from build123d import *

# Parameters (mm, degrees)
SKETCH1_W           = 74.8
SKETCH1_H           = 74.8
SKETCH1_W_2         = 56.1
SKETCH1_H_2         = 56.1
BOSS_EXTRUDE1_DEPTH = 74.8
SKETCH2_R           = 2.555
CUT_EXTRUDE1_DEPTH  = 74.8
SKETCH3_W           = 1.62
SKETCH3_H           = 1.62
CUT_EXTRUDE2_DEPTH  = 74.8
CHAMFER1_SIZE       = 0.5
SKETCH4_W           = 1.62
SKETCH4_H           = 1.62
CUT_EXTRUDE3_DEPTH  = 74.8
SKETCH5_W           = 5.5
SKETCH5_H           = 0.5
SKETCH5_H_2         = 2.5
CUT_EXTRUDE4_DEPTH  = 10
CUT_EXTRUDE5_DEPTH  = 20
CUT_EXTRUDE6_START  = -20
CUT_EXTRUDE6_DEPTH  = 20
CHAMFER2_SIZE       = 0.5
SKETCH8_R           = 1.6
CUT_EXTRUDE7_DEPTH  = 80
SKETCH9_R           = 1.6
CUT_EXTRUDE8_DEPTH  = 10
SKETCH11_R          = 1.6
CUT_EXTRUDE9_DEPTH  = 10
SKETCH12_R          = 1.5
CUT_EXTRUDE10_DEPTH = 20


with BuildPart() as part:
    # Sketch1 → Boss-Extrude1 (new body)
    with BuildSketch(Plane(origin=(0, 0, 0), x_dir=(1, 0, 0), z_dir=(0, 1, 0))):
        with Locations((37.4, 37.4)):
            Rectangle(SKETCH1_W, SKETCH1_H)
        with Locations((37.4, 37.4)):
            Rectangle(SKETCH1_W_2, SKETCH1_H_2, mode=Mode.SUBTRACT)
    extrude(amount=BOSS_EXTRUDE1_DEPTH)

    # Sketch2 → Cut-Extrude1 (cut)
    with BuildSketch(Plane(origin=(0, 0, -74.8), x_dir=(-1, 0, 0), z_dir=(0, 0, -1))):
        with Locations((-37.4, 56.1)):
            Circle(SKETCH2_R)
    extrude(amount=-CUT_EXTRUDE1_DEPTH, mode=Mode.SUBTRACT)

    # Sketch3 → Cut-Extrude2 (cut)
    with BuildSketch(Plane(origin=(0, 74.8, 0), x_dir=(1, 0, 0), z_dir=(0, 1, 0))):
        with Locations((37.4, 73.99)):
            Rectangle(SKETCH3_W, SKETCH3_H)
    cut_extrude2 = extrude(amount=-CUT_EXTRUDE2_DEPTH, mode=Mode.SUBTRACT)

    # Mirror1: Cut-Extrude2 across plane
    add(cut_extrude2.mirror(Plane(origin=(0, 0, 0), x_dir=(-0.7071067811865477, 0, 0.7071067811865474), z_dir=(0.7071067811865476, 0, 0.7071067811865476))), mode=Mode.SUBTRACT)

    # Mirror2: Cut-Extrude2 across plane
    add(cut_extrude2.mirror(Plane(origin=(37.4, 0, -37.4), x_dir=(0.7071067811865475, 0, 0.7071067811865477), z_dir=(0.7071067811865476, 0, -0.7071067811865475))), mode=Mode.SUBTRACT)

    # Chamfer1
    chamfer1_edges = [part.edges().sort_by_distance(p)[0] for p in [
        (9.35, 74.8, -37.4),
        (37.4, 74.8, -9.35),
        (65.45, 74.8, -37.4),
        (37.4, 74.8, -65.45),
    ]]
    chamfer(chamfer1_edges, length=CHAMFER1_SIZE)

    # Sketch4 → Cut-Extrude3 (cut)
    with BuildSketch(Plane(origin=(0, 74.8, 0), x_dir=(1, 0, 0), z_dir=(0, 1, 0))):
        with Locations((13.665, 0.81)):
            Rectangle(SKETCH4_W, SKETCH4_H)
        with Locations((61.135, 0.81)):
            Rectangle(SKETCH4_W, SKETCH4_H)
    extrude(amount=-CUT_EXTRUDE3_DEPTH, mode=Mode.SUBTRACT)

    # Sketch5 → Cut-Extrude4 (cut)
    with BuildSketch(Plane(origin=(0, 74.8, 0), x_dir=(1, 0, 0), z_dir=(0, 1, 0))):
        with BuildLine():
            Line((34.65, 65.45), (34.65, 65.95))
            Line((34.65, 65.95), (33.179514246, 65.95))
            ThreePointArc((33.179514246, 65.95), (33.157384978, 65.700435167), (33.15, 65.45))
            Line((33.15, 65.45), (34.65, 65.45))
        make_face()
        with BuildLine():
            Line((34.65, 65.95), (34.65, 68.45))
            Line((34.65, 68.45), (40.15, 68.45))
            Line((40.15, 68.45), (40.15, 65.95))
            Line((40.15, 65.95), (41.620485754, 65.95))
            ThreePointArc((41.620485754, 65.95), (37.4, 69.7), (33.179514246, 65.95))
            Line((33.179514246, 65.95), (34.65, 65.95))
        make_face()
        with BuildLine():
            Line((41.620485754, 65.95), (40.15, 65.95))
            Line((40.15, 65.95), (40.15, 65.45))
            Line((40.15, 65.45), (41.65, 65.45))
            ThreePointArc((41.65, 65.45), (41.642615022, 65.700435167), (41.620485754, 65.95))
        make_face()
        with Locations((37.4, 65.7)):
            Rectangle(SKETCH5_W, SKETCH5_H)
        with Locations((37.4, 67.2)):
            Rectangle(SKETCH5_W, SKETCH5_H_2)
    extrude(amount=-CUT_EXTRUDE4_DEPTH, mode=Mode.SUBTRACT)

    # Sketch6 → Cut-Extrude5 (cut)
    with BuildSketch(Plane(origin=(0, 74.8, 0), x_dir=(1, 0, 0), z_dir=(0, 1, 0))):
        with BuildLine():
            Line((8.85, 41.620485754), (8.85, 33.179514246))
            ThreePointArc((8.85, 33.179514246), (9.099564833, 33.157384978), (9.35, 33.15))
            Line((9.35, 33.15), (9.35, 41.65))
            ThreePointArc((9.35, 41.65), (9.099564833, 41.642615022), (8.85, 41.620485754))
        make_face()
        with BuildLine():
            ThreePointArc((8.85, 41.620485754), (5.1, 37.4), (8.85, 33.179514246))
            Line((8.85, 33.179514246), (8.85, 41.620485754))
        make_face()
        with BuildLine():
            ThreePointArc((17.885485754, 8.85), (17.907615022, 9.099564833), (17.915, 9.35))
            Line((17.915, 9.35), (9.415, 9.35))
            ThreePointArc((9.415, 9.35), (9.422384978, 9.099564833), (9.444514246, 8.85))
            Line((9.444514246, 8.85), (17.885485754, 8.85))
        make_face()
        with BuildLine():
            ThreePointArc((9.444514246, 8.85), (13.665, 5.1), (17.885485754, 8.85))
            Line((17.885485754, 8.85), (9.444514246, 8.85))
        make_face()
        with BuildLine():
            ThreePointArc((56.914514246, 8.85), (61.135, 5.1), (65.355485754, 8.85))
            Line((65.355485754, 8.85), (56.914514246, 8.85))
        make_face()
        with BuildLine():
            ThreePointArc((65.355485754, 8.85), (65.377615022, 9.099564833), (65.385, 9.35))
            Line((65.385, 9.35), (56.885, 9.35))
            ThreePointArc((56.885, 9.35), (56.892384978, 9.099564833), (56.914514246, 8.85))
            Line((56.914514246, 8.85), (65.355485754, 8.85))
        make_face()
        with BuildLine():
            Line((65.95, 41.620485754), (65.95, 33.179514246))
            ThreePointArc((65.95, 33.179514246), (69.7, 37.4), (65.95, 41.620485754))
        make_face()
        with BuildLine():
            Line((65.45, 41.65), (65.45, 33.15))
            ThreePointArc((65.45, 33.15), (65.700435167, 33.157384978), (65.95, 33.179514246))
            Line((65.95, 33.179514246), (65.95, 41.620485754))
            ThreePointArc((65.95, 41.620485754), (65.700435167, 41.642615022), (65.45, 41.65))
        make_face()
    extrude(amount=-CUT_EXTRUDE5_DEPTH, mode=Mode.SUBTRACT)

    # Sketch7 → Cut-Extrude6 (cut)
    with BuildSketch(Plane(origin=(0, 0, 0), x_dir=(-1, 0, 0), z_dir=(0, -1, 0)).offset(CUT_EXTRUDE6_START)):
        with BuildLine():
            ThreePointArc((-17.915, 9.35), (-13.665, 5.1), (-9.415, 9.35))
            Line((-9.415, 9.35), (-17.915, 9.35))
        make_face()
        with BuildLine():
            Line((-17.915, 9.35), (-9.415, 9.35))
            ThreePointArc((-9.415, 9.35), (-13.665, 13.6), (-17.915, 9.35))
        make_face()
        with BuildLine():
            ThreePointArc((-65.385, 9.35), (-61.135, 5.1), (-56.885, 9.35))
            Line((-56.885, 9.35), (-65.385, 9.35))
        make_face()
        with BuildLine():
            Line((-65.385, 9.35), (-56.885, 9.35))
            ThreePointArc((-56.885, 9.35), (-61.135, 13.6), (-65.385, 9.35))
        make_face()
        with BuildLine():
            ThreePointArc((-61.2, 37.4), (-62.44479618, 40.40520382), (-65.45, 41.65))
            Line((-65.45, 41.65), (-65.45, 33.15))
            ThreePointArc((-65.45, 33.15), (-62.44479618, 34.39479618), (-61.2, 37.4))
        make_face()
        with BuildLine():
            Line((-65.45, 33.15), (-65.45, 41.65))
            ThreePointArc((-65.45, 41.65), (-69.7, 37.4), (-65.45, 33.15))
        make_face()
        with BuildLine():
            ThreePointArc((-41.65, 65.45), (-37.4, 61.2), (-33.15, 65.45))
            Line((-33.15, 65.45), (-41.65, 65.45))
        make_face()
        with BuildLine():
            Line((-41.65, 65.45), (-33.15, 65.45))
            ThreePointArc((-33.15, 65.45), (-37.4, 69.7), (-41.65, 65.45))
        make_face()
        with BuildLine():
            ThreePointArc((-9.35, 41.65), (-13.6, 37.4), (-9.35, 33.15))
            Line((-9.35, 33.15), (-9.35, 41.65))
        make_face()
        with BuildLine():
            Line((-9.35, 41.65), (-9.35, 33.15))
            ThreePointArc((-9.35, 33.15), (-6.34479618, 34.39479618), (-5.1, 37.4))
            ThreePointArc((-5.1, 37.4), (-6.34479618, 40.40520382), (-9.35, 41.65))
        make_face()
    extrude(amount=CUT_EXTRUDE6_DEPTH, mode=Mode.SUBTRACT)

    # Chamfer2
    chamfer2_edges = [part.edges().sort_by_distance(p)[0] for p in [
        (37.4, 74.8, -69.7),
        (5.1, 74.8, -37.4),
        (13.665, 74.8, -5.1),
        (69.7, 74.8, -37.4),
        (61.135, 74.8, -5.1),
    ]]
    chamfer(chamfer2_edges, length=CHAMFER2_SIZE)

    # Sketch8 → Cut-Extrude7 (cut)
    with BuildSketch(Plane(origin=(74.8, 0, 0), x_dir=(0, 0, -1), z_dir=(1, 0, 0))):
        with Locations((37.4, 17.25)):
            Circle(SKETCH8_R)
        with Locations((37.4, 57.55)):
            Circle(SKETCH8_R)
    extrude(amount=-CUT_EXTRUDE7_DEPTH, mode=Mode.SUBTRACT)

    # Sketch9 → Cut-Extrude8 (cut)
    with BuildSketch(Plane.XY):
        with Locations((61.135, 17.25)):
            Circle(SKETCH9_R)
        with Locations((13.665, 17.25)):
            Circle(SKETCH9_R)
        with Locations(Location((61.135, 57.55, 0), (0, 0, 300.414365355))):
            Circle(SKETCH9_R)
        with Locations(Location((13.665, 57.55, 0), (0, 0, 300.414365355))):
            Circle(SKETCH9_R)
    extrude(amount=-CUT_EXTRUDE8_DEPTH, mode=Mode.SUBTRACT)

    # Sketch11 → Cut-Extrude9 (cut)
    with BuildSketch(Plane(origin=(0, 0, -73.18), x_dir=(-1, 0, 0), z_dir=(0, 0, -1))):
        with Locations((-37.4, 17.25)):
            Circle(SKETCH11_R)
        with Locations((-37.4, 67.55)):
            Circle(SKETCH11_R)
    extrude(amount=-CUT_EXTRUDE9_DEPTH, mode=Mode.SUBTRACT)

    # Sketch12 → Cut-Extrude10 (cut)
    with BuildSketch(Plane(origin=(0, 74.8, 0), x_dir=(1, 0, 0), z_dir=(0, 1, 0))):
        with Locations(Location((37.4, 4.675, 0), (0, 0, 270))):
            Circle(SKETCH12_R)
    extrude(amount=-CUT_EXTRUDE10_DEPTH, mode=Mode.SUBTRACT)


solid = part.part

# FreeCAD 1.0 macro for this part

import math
import FreeCAD as App
import Part
import Sketcher
Q = App.Units.Quantity


def edges_at(feature, points):
    """Names of the edges that pass closest to the given points."""
    edges = feature.Shape.Edges
    near = lambda p: min(range(len(edges)), key=lambda i: edges[i].distToShape(Part.Vertex(*p))[0])
    return sorted({f"Edge{near(p) + 1}" for p in points})

doc = App.newDocument("Part")
body = doc.addObject("PartDesign::Body", "Body")

# Sketch on XZ plane
sketch1 = body.newObject("Sketcher::SketchObject", "Sketch")
sketch1.AttachmentSupport = (doc.getObject("XZ_Plane"), [""])
sketch1.MapMode = "FlatFace"
sketch1.addGeometry([
    Part.LineSegment(App.Vector(0, -74.8, 0), App.Vector(0, 0, 0)),  # 0
    Part.LineSegment(App.Vector(0, 0, 0), App.Vector(74.8, 0, 0)),  # 1
    Part.LineSegment(App.Vector(74.8, 0, 0), App.Vector(74.8, -74.8, 0)),  # 2
    Part.LineSegment(App.Vector(74.8, -74.8, 0), App.Vector(0, -74.8, 0)),  # 3
    Part.LineSegment(App.Vector(65.45, -9.35, 0), App.Vector(9.35, -9.35, 0)),  # 4
    Part.LineSegment(App.Vector(9.35, -9.35, 0), App.Vector(9.35, -65.45, 0)),  # 5
    Part.LineSegment(App.Vector(9.35, -65.45, 0), App.Vector(65.45, -65.45, 0)),  # 6
    Part.LineSegment(App.Vector(65.45, -65.45, 0), App.Vector(65.45, -9.35, 0)),  # 7
], False)
sketch1.addConstraint([
    Sketcher.Constraint("Coincident", 0, 2, 1, 1),
    Sketcher.Constraint("Coincident", 1, 2, 2, 1),
    Sketcher.Constraint("Coincident", 2, 2, 3, 1),
    Sketcher.Constraint("Coincident", 3, 2, 0, 1),
    Sketcher.Constraint("Coincident", 4, 2, 5, 1),
    Sketcher.Constraint("Coincident", 5, 2, 6, 1),
    Sketcher.Constraint("Coincident", 6, 2, 7, 1),
    Sketcher.Constraint("Coincident", 7, 2, 4, 1),
    Sketcher.Constraint("Vertical", 0),
    Sketcher.Constraint("Horizontal", 1),
    Sketcher.Constraint("Vertical", 2),
    Sketcher.Constraint("Horizontal", 3),
    Sketcher.Constraint("Horizontal", 4),
    Sketcher.Constraint("Vertical", 5),
    Sketcher.Constraint("Horizontal", 6),
    Sketcher.Constraint("Vertical", 7),
    Sketcher.Constraint("Coincident", 0, 2, -1, 1),
    Sketcher.Constraint("Equal", 3, 0),
    Sketcher.Constraint("Equal", 6, 5),
    Sketcher.Constraint("DistanceX", 1, 1, 1, 2, Q("74.8 mm")),
    Sketcher.Constraint("DistanceX", 4, 2, 4, 1, Q("56.1 mm")),
    Sketcher.Constraint("DistanceX", -1, 1, 4, 2, Q("9.35 mm")),
    Sketcher.Constraint("DistanceY", 4, 2, -1, 1, Q("9.35 mm")),
])
pad1 = body.newObject("PartDesign::Pad", "Pad")
pad1.Profile = sketch1
pad1.Length = 74.8
pad1.Reversed = True

# Sketch on XY plane
sketch2 = body.newObject("Sketcher::SketchObject", "Sketch001")
sketch2.AttachmentSupport = (doc.getObject("XY_Plane"), [""])
sketch2.MapMode = "FlatFace"
sketch2.AttachmentOffset = App.Placement(App.Vector(0, 0, -74.8), App.Rotation())
sketch2.addGeometry(Part.Circle(App.Vector(37.4, 56.1, 0), App.Vector(0, 0, 1), 2.555), False)
sketch2.addConstraint([
    Sketcher.Constraint("Diameter", 0, Q("5.11 mm")),
    Sketcher.Constraint("DistanceX", -1, 1, 0, 3, Q("37.4 mm")),
    Sketcher.Constraint("DistanceY", -1, 1, 0, 3, Q("56.1 mm")),
])
pocket1 = body.newObject("PartDesign::Pocket", "Pocket")
pocket1.Profile = sketch2
pocket1.Length = 74.8
pocket1.Reversed = True

# Sketch on XZ plane
sketch3 = body.newObject("Sketcher::SketchObject", "Sketch002")
sketch3.AttachmentSupport = (doc.getObject("XZ_Plane"), [""])
sketch3.MapMode = "FlatFace"
sketch3.AttachmentOffset = App.Placement(App.Vector(0, 0, -74.8), App.Rotation())
sketch3.addGeometry([
    Part.LineSegment(App.Vector(36.59, -74.8, 0), App.Vector(36.59, -73.18, 0)),
    Part.LineSegment(App.Vector(36.59, -73.18, 0), App.Vector(38.21, -73.18, 0)),
    Part.LineSegment(App.Vector(38.21, -73.18, 0), App.Vector(38.21, -74.8, 0)),
    Part.LineSegment(App.Vector(38.21, -74.8, 0), App.Vector(36.59, -74.8, 0)),
], False)
sketch3.addConstraint([
    Sketcher.Constraint("Coincident", 0, 2, 1, 1),
    Sketcher.Constraint("Coincident", 1, 2, 2, 1),
    Sketcher.Constraint("Coincident", 2, 2, 3, 1),
    Sketcher.Constraint("Coincident", 3, 2, 0, 1),
    Sketcher.Constraint("Vertical", 0),
    Sketcher.Constraint("Horizontal", 1),
    Sketcher.Constraint("Vertical", 2),
    Sketcher.Constraint("Horizontal", 3),
    Sketcher.Constraint("Equal", 3, 0),
    Sketcher.Constraint("DistanceX", 1, 1, 1, 2, Q("1.62 mm")),
    Sketcher.Constraint("DistanceY", 2, 2, -1, 1, Q("74.8 mm")),
    Sketcher.Constraint("DistanceX", -1, 1, 0, 2, Q("36.59 mm")),
])
pocket2 = body.newObject("PartDesign::Pocket", "Pocket001")
pocket2.Profile = sketch3
pocket2.Length = 74.8
pocket2.Reversed = True
doc.recompute()

datumplane = body.newObject("PartDesign::Plane", "DatumPlane")
datumplane.Placement = App.Placement(App.Vector(0, 0, 0), App.Rotation(App.Vector(-0.707106781, 0, 0.707106781), App.Vector(0, -1, 0), App.Vector(0.707106781, 0, 0.707106781), "ZXY"))
mirrored = body.newObject("PartDesign::Mirrored", "Mirrored")
mirrored.Originals = [pocket2]
mirrored.MirrorPlane = (datumplane, [""])
body.Tip = mirrored
doc.recompute()

datumplane2 = body.newObject("PartDesign::Plane", "DatumPlane001")
datumplane2.Placement = App.Placement(App.Vector(37.4, 0, -37.4), App.Rotation(App.Vector(0.707106781, 0, 0.707106781), App.Vector(0, -1, 0), App.Vector(0.707106781, 0, -0.707106781), "ZXY"))
mirrored2 = body.newObject("PartDesign::Mirrored", "Mirrored001")
mirrored2.Originals = [pocket2]
mirrored2.MirrorPlane = (datumplane2, [""])
body.Tip = mirrored2
doc.recompute()

chamfer = body.newObject("PartDesign::Chamfer", "Chamfer")
chamfer.Base = (mirrored2, edges_at(mirrored2, [
    (9.35, 74.8, -37.4),
    (37.4, 74.8, -9.35),
    (65.45, 74.8, -37.4),
    (37.4, 74.8, -65.45),
]))
chamfer.Size = 0.5

# Sketch on XZ plane
sketch4 = body.newObject("Sketcher::SketchObject", "Sketch003")
sketch4.AttachmentSupport = (doc.getObject("XZ_Plane"), [""])
sketch4.MapMode = "FlatFace"
sketch4.AttachmentOffset = App.Placement(App.Vector(0, 0, -74.8), App.Rotation())
sketch4.addGeometry([
    Part.LineSegment(App.Vector(12.855, -1.62, 0), App.Vector(12.855, 0, 0)),  # 0
    Part.LineSegment(App.Vector(12.855, 0, 0), App.Vector(14.475, 0, 0)),  # 1
    Part.LineSegment(App.Vector(14.475, 0, 0), App.Vector(14.475, -1.62, 0)),  # 2
    Part.LineSegment(App.Vector(14.475, -1.62, 0), App.Vector(12.855, -1.62, 0)),  # 3
    Part.LineSegment(App.Vector(60.325, -1.62, 0), App.Vector(60.325, 0, 0)),  # 4
    Part.LineSegment(App.Vector(60.325, 0, 0), App.Vector(61.945, 0, 0)),  # 5
    Part.LineSegment(App.Vector(61.945, 0, 0), App.Vector(61.945, -1.62, 0)),  # 6
    Part.LineSegment(App.Vector(61.945, -1.62, 0), App.Vector(60.325, -1.62, 0)),  # 7
], False)
sketch4.addConstraint([
    Sketcher.Constraint("Coincident", 0, 2, 1, 1),
    Sketcher.Constraint("Coincident", 1, 2, 2, 1),
    Sketcher.Constraint("Coincident", 2, 2, 3, 1),
    Sketcher.Constraint("Coincident", 3, 2, 0, 1),
    Sketcher.Constraint("Coincident", 4, 2, 5, 1),
    Sketcher.Constraint("Coincident", 5, 2, 6, 1),
    Sketcher.Constraint("Coincident", 6, 2, 7, 1),
    Sketcher.Constraint("Coincident", 7, 2, 4, 1),
    Sketcher.Constraint("Vertical", 0),
    Sketcher.Constraint("Horizontal", 1),
    Sketcher.Constraint("Vertical", 2),
    Sketcher.Constraint("Horizontal", 3),
    Sketcher.Constraint("Vertical", 4),
    Sketcher.Constraint("Horizontal", 5),
    Sketcher.Constraint("Vertical", 6),
    Sketcher.Constraint("Horizontal", 7),
    Sketcher.Constraint("PointOnObject", 0, 2, -1),
    Sketcher.Constraint("PointOnObject", 4, 2, -1),
    Sketcher.Constraint("Horizontal", 3, 2, 6, 2),
    Sketcher.Constraint("Equal", 3, 5),
    Sketcher.Constraint("Equal", 7, 0),
    Sketcher.Constraint("DistanceX", 1, 1, 1, 2, Q("1.62 mm")),
    Sketcher.Constraint("DistanceX", 1, 2, 4, 2, Q("45.85 mm")),
    Sketcher.Constraint("DistanceX", -1, 1, 0, 2, Q("12.855 mm")),
])
pocket3 = body.newObject("PartDesign::Pocket", "Pocket002")
pocket3.Profile = sketch4
pocket3.Length = 74.8
pocket3.Reversed = True

# Sketch on XZ plane
sketch5 = body.newObject("Sketcher::SketchObject", "Sketch004")
sketch5.AttachmentSupport = (doc.getObject("XZ_Plane"), [""])
sketch5.MapMode = "FlatFace"
sketch5.AttachmentOffset = App.Placement(App.Vector(0, 0, -74.8), App.Rotation())
sketch5.addGeometry([
    Part.ArcOfCircle(Part.Circle(App.Vector(37.4, -65.45, 0), App.Vector(0, 0, 1), 4.25), math.radians(-6.756327), math.radians(0)),
    Part.ArcOfCircle(Part.Circle(App.Vector(37.4, -65.45, 0), App.Vector(0, 0, 1), 4.25), math.radians(-173.243673), math.radians(-6.756327)),
    Part.ArcOfCircle(Part.Circle(App.Vector(37.4, -65.45, 0), App.Vector(0, 0, 1), 4.25), math.radians(-180), math.radians(-173.243673)),
    Part.LineSegment(App.Vector(33.15, -65.45, 0), App.Vector(41.65, -65.45, 0)),
], False)
sketch5.addConstraint([
    Sketcher.Constraint("Tangent", 0, 1, 1, 2),
    Sketcher.Constraint("Tangent", 1, 1, 2, 2),
    Sketcher.Constraint("Coincident", 2, 1, 3, 1),
    Sketcher.Constraint("Coincident", 3, 2, 0, 2),
    Sketcher.Constraint("Horizontal", 3),
    Sketcher.Constraint("Coincident", 2, 3, 0, 3),
    Sketcher.Constraint("Horizontal", 0, 1, 1, 1),
    Sketcher.Constraint("Horizontal", 1, 3, 2, 1),
    Sketcher.Constraint("Radius", 0, Q("4.25 mm")),
    Sketcher.Constraint("DistanceX", -1, 1, 0, 3, Q("37.4 mm")),
    Sketcher.Constraint("DistanceY", 0, 1, 2, 3, Q("0.5 mm")),
    Sketcher.Constraint("DistanceY", 0, 3, -1, 1, Q("65.45 mm")),
])
pocket4 = body.newObject("PartDesign::Pocket", "Pocket003")
pocket4.Profile = sketch5
pocket4.Length = 10
pocket4.Reversed = True

# Sketch on XZ plane
sketch6 = body.newObject("Sketcher::SketchObject", "Sketch005")
sketch6.AttachmentSupport = (doc.getObject("XZ_Plane"), [""])
sketch6.MapMode = "FlatFace"
sketch6.AttachmentOffset = App.Placement(App.Vector(0, 0, -74.8), App.Rotation())
sketch6.addGeometry([
    Part.ArcOfCircle(Part.Circle(App.Vector(9.35, -37.4, 0), App.Vector(0, 0, 1), 4.25), math.radians(90), math.radians(96.756327)),  # 0
    Part.LineSegment(App.Vector(9.35, -33.15, 0), App.Vector(9.35, -41.65, 0)),  # 1
    Part.ArcOfCircle(Part.Circle(App.Vector(9.35, -37.4, 0), App.Vector(0, 0, 1), 4.25), math.radians(-96.756327), math.radians(-90)),  # 2
    Part.ArcOfCircle(Part.Circle(App.Vector(9.35, -37.4, 0), App.Vector(0, 0, 1), 4.25), math.radians(96.756327), math.radians(263.243673)),  # 3
    Part.ArcOfCircle(Part.Circle(App.Vector(13.665, -9.35, 0), App.Vector(0, 0, 1), 4.25), math.radians(0), math.radians(6.756327)),  # 4
    Part.LineSegment(App.Vector(17.915, -9.35, 0), App.Vector(9.415, -9.35, 0)),  # 5
    Part.ArcOfCircle(Part.Circle(App.Vector(13.665, -9.35, 0), App.Vector(0, 0, 1), 4.25), math.radians(173.243673), math.radians(180)),  # 6
    Part.ArcOfCircle(Part.Circle(App.Vector(13.665, -9.35, 0), App.Vector(0, 0, 1), 4.25), math.radians(6.756327), math.radians(173.243673)),  # 7
    Part.ArcOfCircle(Part.Circle(App.Vector(61.135, -9.35, 0), App.Vector(0, 0, 1), 4.25), math.radians(6.756327), math.radians(173.243673)),  # 8
    Part.ArcOfCircle(Part.Circle(App.Vector(61.135, -9.35, 0), App.Vector(0, 0, 1), 4.25), math.radians(0), math.radians(6.756327)),  # 9
    Part.LineSegment(App.Vector(65.385, -9.35, 0), App.Vector(56.885, -9.35, 0)),  # 10
    Part.ArcOfCircle(Part.Circle(App.Vector(61.135, -9.35, 0), App.Vector(0, 0, 1), 4.25), math.radians(173.243673), math.radians(180)),  # 11
    Part.ArcOfCircle(Part.Circle(App.Vector(65.45, -37.4, 0), App.Vector(0, 0, 1), 4.25), math.radians(-83.243673), math.radians(83.243673)),  # 12
    Part.ArcOfCircle(Part.Circle(App.Vector(65.45, -37.4, 0), App.Vector(0, 0, 1), 4.25), math.radians(-90), math.radians(-83.243673)),  # 13
    Part.LineSegment(App.Vector(65.45, -41.65, 0), App.Vector(65.45, -33.15, 0)),  # 14
    Part.ArcOfCircle(Part.Circle(App.Vector(65.45, -37.4, 0), App.Vector(0, 0, 1), 4.25), math.radians(83.243673), math.radians(90)),  # 15
], False)
sketch6.addConstraint([
    Sketcher.Constraint("Coincident", 0, 1, 1, 1),
    Sketcher.Constraint("Coincident", 1, 2, 2, 2),
    Sketcher.Constraint("Tangent", 2, 1, 3, 2),
    Sketcher.Constraint("Tangent", 3, 1, 0, 2),
    Sketcher.Constraint("Coincident", 4, 1, 5, 1),
    Sketcher.Constraint("Coincident", 5, 2, 6, 2),
    Sketcher.Constraint("Tangent", 6, 1, 7, 2),
    Sketcher.Constraint("Tangent", 7, 1, 4, 2),
    Sketcher.Constraint("Tangent", 8, 1, 9, 2),
    Sketcher.Constraint("Coincident", 9, 1, 10, 1),
    Sketcher.Constraint("Coincident", 10, 2, 11, 2),
    Sketcher.Constraint("Tangent", 11, 1, 8, 2),
    Sketcher.Constraint("Tangent", 12, 1, 13, 2),
    Sketcher.Constraint("Coincident", 13, 1, 14, 1),
    Sketcher.Constraint("Coincident", 14, 2, 15, 2),
    Sketcher.Constraint("Tangent", 15, 1, 12, 2),
    Sketcher.Constraint("Vertical", 1),
    Sketcher.Constraint("Horizontal", 5),
    Sketcher.Constraint("Horizontal", 10),
    Sketcher.Constraint("Vertical", 14),
    Sketcher.Constraint("Coincident", 2, 3, 0, 3),
    Sketcher.Constraint("Coincident", 6, 3, 4, 3),
    Sketcher.Constraint("Equal", 3, 4),
    Sketcher.Constraint("Equal", 7, 8),
    Sketcher.Constraint("Equal", 8, 9),
    Sketcher.Constraint("Equal", 9, 11),
    Sketcher.Constraint("Equal", 11, 12),
    Sketcher.Constraint("Equal", 12, 13),
    Sketcher.Constraint("Equal", 13, 15),
    Sketcher.Constraint("Horizontal", 7, 3, 8, 3),
    Sketcher.Constraint("Horizontal", 3, 3, 12, 3),
    Sketcher.Constraint("Horizontal", 11, 3, 4, 1),
    Sketcher.Constraint("Horizontal", 6, 1, 7, 1),
    Sketcher.Constraint("Horizontal", 7, 1, 8, 1),
    Sketcher.Constraint("Horizontal", 5, 2, 9, 1),
    Sketcher.Constraint("Horizontal", 8, 1, 11, 1),
    Sketcher.Constraint("Horizontal", 2, 1, 12, 1),
    Sketcher.Constraint("Horizontal", 3, 1, 15, 1),
    Sketcher.Constraint("Vertical", 3, 3, 0, 1),
    Sketcher.Constraint("Vertical", 2, 1, 3, 1),
    Sketcher.Constraint("Vertical", 15, 3, 13, 1),
    Sketcher.Constraint("Radius", 0, Q("4.25 mm")),
    Sketcher.Constraint("DistanceY", 0, 3, -1, 1, Q("37.4 mm")),
    Sketcher.Constraint("DistanceX", 0, 3, 12, 3, Q("56.1 mm")),
    Sketcher.Constraint("DistanceY", 0, 1, 4, 3, Q("23.8 mm")),
    Sketcher.Constraint("DistanceX", 2, 1, 1, 2, Q("0.5 mm")),
    Sketcher.Constraint("DistanceY", 5, 2, 6, 1, Q("0.5 mm")),
    Sketcher.Constraint("DistanceX", -1, 1, 0, 3, Q("9.35 mm")),
    Sketcher.Constraint("DistanceX", 6, 3, 8, 3, Q("47.47 mm")),
    Sketcher.Constraint("DistanceX", -1, 1, 4, 3, Q("13.665 mm")),
])
pocket5 = body.newObject("PartDesign::Pocket", "Pocket004")
pocket5.Profile = sketch6
pocket5.Length = 20
pocket5.Reversed = True

# Sketch on XZ plane
sketch7 = body.newObject("Sketcher::SketchObject", "Sketch006")
sketch7.AttachmentSupport = (doc.getObject("XZ_Plane"), [""])
sketch7.MapMode = "FlatFace"
sketch7.AttachmentOffset = App.Placement(App.Vector(0, 0, -20), App.Rotation())
sketch7.addGeometry([
    Part.Circle(App.Vector(13.665, -9.35, 0), App.Vector(0, 0, 1), 4.25),  # 0
    Part.Circle(App.Vector(61.135, -9.35, 0), App.Vector(0, 0, 1), 4.25),  # 1
    Part.ArcOfCircle(Part.Circle(App.Vector(65.45, -37.4, 0), App.Vector(0, 0, 1), 4.25), math.radians(180), math.radians(270)),  # 2
    Part.ArcOfCircle(Part.Circle(App.Vector(65.45, -37.4, 0), App.Vector(0, 0, 1), 4.25), math.radians(-90), math.radians(90)),  # 3
    Part.ArcOfCircle(Part.Circle(App.Vector(65.45, -37.4, 0), App.Vector(0, 0, 1), 4.25), math.radians(90), math.radians(180)),  # 4
    Part.Circle(App.Vector(37.4, -65.45, 0), App.Vector(0, 0, 1), 4.25),  # 5
    Part.ArcOfCircle(Part.Circle(App.Vector(9.35, -37.4, 0), App.Vector(0, 0, 1), 4.25), math.radians(-90), math.radians(90)),  # 6
    Part.ArcOfCircle(Part.Circle(App.Vector(9.35, -37.4, 0), App.Vector(0, 0, 1), 4.25), math.radians(90), math.radians(180)),  # 7
    Part.ArcOfCircle(Part.Circle(App.Vector(9.35, -37.4, 0), App.Vector(0, 0, 1), 4.25), math.radians(180), math.radians(270)),  # 8
], False)
sketch7.addConstraint([
    Sketcher.Constraint("Tangent", 2, 2, 3, 1),
    Sketcher.Constraint("Tangent", 3, 2, 4, 1),
    Sketcher.Constraint("Tangent", 4, 2, 2, 1),
    Sketcher.Constraint("Tangent", 6, 2, 7, 1),
    Sketcher.Constraint("Tangent", 7, 2, 8, 1),
    Sketcher.Constraint("Tangent", 8, 2, 6, 1),
    Sketcher.Constraint("Equal", 0, 1),
    Sketcher.Constraint("Equal", 1, 2),
    Sketcher.Constraint("Equal", 4, 5),
    Sketcher.Constraint("Equal", 5, 6),
    Sketcher.Constraint("Horizontal", 0, 3, 1, 3),
    Sketcher.Constraint("Horizontal", 4, 3, 6, 3),
    Sketcher.Constraint("Horizontal", 8, 3, 4, 2),
    Sketcher.Constraint("Horizontal", 4, 2, 7, 2),
    Sketcher.Constraint("Vertical", 4, 3, 2, 2),
    Sketcher.Constraint("Vertical", 2, 2, 3, 2),
    Sketcher.Constraint("Vertical", 8, 3, 6, 2),
    Sketcher.Constraint("Vertical", 6, 2, 8, 2),
    Sketcher.Constraint("Diameter", 0, Q("8.5 mm")),
    Sketcher.Constraint("DistanceY", 2, 3, -1, 1, Q("37.4 mm")),
    Sketcher.Constraint("DistanceX", -1, 1, 5, 3, Q("37.4 mm")),
    Sketcher.Constraint("DistanceX", -1, 1, 4, 2, Q("61.2 mm")),
    Sketcher.Constraint("DistanceX", -1, 1, 7, 2, Q("5.1 mm")),
    Sketcher.Constraint("DistanceY", 5, 3, 0, 3, Q("56.1 mm")),
    Sketcher.Constraint("DistanceY", 2, 2, 1, 3, Q("32.3 mm")),
    Sketcher.Constraint("DistanceX", 0, 3, 1, 3, Q("47.47 mm")),
    Sketcher.Constraint("DistanceX", -1, 1, 0, 3, Q("13.665 mm")),
])
pocket6 = body.newObject("PartDesign::Pocket", "Pocket005")
pocket6.Profile = sketch7
pocket6.Length = 20
pocket6.Reversed = True
doc.recompute()

chamfer2 = body.newObject("PartDesign::Chamfer", "Chamfer001")
chamfer2.Base = (pocket6, edges_at(pocket6, [
    (37.4, 74.8, -69.7),
    (5.1, 74.8, -37.4),
    (13.665, 74.8, -5.1),
    (69.7, 74.8, -37.4),
    (61.135, 74.8, -5.1),
]))
chamfer2.Size = 0.5

# Sketch on YZ plane
sketch8 = body.newObject("Sketcher::SketchObject", "Sketch007")
sketch8.AttachmentSupport = (doc.getObject("YZ_Plane"), [""])
sketch8.MapMode = "FlatFace"
sketch8.AttachmentOffset = App.Placement(App.Vector(0, 0, 74.8), App.Rotation())
sketch8.addGeometry([
    Part.Circle(App.Vector(17.25, -37.4, 0), App.Vector(0, 0, 1), 1.6),
    Part.Circle(App.Vector(57.55, -37.4, 0), App.Vector(0, 0, 1), 1.6),
], False)
sketch8.addConstraint([
    Sketcher.Constraint("Equal", 0, 1),
    Sketcher.Constraint("Horizontal", 0, 3, 1, 3),
    Sketcher.Constraint("Diameter", 0, Q("3.2 mm")),
    Sketcher.Constraint("DistanceY", 0, 3, -1, 1, Q("37.4 mm")),
    Sketcher.Constraint("DistanceX", 0, 3, 1, 3, Q("40.3 mm")),
    Sketcher.Constraint("DistanceX", -1, 1, 0, 3, Q("17.25 mm")),
])
pocket7 = body.newObject("PartDesign::Pocket", "Pocket006")
pocket7.Profile = sketch8
pocket7.Length = 80

# Sketch on XY plane
sketch9 = body.newObject("Sketcher::SketchObject", "Sketch008")
sketch9.AttachmentSupport = (doc.getObject("XY_Plane"), [""])
sketch9.MapMode = "FlatFace"
sketch9.addGeometry([
    Part.Circle(App.Vector(61.135, 17.25, 0), App.Vector(0, 0, 1), 1.6),
    Part.Circle(App.Vector(13.665, 17.25, 0), App.Vector(0, 0, 1), 1.6),
    Part.Circle(App.Vector(61.135, 57.55, 0), App.Vector(0, 0, 1), 1.6),
    Part.Circle(App.Vector(13.665, 57.55, 0), App.Vector(0, 0, 1), 1.6),
], False)
sketch9.addConstraint([
    Sketcher.Constraint("Equal", 0, 1),
    Sketcher.Constraint("Equal", 1, 2),
    Sketcher.Constraint("Equal", 2, 3),
    Sketcher.Constraint("Horizontal", 0, 3, 1, 3),
    Sketcher.Constraint("Horizontal", 2, 3, 3, 3),
    Sketcher.Constraint("Vertical", 0, 3, 2, 3),
    Sketcher.Constraint("Vertical", 1, 3, 3, 3),
    Sketcher.Constraint("Diameter", 0, Q("3.2 mm")),
    Sketcher.Constraint("DistanceY", 0, 3, 2, 3, Q("40.3 mm")),
    Sketcher.Constraint("DistanceY", -1, 1, 0, 3, Q("17.25 mm")),
    Sketcher.Constraint("DistanceX", 1, 3, 0, 3, Q("47.47 mm")),
    Sketcher.Constraint("DistanceX", -1, 1, 0, 3, Q("61.135 mm")),
])
pocket8 = body.newObject("PartDesign::Pocket", "Pocket007")
pocket8.Profile = sketch9
pocket8.Length = 10

# Sketch on XY plane
sketch10 = body.newObject("Sketcher::SketchObject", "Sketch009")
sketch10.AttachmentSupport = (doc.getObject("XY_Plane"), [""])
sketch10.MapMode = "FlatFace"
sketch10.AttachmentOffset = App.Placement(App.Vector(0, 0, -73.18), App.Rotation())
sketch10.addGeometry([
    Part.Circle(App.Vector(37.4, 17.25, 0), App.Vector(0, 0, 1), 1.6),
    Part.Circle(App.Vector(37.4, 67.55, 0), App.Vector(0, 0, 1), 1.6),
], False)
sketch10.addConstraint([
    Sketcher.Constraint("Equal", 0, 1),
    Sketcher.Constraint("Vertical", 0, 3, 1, 3),
    Sketcher.Constraint("Diameter", 0, Q("3.2 mm")),
    Sketcher.Constraint("DistanceX", -1, 1, 0, 3, Q("37.4 mm")),
    Sketcher.Constraint("DistanceY", 0, 3, 1, 3, Q("50.3 mm")),
    Sketcher.Constraint("DistanceY", -1, 1, 0, 3, Q("17.25 mm")),
])
pocket9 = body.newObject("PartDesign::Pocket", "Pocket008")
pocket9.Profile = sketch10
pocket9.Length = 10
pocket9.Reversed = True

# Sketch on XZ plane
sketch11 = body.newObject("Sketcher::SketchObject", "Sketch010")
sketch11.AttachmentSupport = (doc.getObject("XZ_Plane"), [""])
sketch11.MapMode = "FlatFace"
sketch11.AttachmentOffset = App.Placement(App.Vector(0, 0, -74.8), App.Rotation())
sketch11.addGeometry(Part.Circle(App.Vector(37.4, -4.675, 0), App.Vector(0, 0, 1), 1.5), False)
sketch11.addConstraint([
    Sketcher.Constraint("Diameter", 0, Q("3 mm")),
    Sketcher.Constraint("DistanceX", -1, 1, 0, 3, Q("37.4 mm")),
    Sketcher.Constraint("DistanceY", 0, 3, -1, 1, Q("4.675 mm")),
])
pocket10 = body.newObject("PartDesign::Pocket", "Pocket009")
pocket10.Profile = sketch11
pocket10.Length = 20
pocket10.Reversed = True

doc.recompute()
